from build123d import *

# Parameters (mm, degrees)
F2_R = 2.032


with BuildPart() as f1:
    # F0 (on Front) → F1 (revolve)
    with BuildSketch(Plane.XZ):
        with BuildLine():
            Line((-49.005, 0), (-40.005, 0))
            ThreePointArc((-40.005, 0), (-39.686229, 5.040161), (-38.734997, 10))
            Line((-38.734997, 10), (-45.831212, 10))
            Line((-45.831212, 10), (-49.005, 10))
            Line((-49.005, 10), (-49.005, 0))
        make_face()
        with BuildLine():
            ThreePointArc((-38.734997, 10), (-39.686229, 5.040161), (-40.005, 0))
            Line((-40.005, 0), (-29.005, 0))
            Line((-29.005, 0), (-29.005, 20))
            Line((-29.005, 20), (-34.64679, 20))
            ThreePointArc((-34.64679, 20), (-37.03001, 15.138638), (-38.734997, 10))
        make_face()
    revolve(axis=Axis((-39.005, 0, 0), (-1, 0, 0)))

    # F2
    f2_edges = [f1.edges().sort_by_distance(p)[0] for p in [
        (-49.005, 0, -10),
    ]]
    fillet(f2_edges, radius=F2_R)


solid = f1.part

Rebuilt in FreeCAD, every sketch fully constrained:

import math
import FreeCAD as App
import Part
import Sketcher
from FreeCAD import Vector
Q = App.Units.Quantity


def edges_at(feature, points):
    """Names of the edges that pass closest to the given points."""
    edges = feature.Shape.Edges
    near = lambda p: min(range(len(edges)), key=lambda i: edges[i].distToShape(Part.Vertex(*p))[0])
    return sorted({f"Edge{near(p) + 1}" for p in points})

doc = App.newDocument("Part")
body = doc.addObject("PartDesign::Body", "Body")

sketch1 = body.newObject("Sketcher::SketchObject", "Sketch")
sketch1.AttachmentSupport = (doc.getObject("XZ_Plane"), [""])
sketch1.MapMode = "FlatFace"
sketch1.addGeometry([
    Part.LineSegment(Vector(-49.005, 0, 0), Vector(-29.005, 0, 0)),
    Part.LineSegment(Vector(-29.005, 0, 0), Vector(-29.005, 20, 0)),
    Part.LineSegment(Vector(-29.005, 20, 0), Vector(-34.64679, 20, 0)),
    Part.ArcOfCircle(Part.Circle(Vector(0.000031, -0.00001, 0), Vector(0, 0, 1), 40.005032), math.radians(150.004145), math.radians(165.524335)),
    Part.LineSegment(Vector(-38.734997, 10, 0), Vector(-49.005, 10, 0)),
    Part.LineSegment(Vector(-49.005, 10, 0), Vector(-49.005, 0, 0)),
], False)
sketch1.addConstraint([
    Sketcher.Constraint("Coincident", 0, 2, 1, 1),
    Sketcher.Constraint("Coincident", 1, 2, 2, 1),
    Sketcher.Constraint("Coincident", 2, 2, 3, 1),
    Sketcher.Constraint("Coincident", 3, 2, 4, 1),
    Sketcher.Constraint("Coincident", 4, 2, 5, 1),
    Sketcher.Constraint("Coincident", 5, 2, 0, 1),
    Sketcher.Constraint("Horizontal", 0),
    Sketcher.Constraint("Vertical", 1),
    Sketcher.Constraint("Horizontal", 2),
    Sketcher.Constraint("Horizontal", 4),
    Sketcher.Constraint("Vertical", 5),
    Sketcher.Constraint("PointOnObject", 0, 2, -1),
    Sketcher.Constraint("Equal", 0, 1),
    Sketcher.Constraint("DistanceX", 0, 1, 0, 2, Q("20 mm")),
    Sketcher.Constraint("DistanceY", 5, 2, 5, 1, Q("10 mm")),
    Sketcher.Constraint("DistanceX", 0, 2, -1, 1, Q("29.005 mm")),
    Sketcher.Constraint("Radius", 3, Q("40.005032 mm")),
    Sketcher.Constraint("DistanceX", 2, 2, 2, 1, Q("5.64179 mm")),
    Sketcher.Constraint("DistanceX", 4, 2, 4, 1, Q("10.270003 mm")),
])
revolution = body.newObject("PartDesign::Revolution", "Revolution")
revolution.Profile = sketch1
revolution.ReferenceAxis = (sketch1, ["H_Axis"])
revolution.Angle = 360
doc.recompute()

fillet = body.newObject("PartDesign::Fillet", "Fillet")
fillet.Base = (revolution, edges_at(revolution, [(-49.005, 0, -10)]))
fillet.Radius = 2.032

doc.recompute()
